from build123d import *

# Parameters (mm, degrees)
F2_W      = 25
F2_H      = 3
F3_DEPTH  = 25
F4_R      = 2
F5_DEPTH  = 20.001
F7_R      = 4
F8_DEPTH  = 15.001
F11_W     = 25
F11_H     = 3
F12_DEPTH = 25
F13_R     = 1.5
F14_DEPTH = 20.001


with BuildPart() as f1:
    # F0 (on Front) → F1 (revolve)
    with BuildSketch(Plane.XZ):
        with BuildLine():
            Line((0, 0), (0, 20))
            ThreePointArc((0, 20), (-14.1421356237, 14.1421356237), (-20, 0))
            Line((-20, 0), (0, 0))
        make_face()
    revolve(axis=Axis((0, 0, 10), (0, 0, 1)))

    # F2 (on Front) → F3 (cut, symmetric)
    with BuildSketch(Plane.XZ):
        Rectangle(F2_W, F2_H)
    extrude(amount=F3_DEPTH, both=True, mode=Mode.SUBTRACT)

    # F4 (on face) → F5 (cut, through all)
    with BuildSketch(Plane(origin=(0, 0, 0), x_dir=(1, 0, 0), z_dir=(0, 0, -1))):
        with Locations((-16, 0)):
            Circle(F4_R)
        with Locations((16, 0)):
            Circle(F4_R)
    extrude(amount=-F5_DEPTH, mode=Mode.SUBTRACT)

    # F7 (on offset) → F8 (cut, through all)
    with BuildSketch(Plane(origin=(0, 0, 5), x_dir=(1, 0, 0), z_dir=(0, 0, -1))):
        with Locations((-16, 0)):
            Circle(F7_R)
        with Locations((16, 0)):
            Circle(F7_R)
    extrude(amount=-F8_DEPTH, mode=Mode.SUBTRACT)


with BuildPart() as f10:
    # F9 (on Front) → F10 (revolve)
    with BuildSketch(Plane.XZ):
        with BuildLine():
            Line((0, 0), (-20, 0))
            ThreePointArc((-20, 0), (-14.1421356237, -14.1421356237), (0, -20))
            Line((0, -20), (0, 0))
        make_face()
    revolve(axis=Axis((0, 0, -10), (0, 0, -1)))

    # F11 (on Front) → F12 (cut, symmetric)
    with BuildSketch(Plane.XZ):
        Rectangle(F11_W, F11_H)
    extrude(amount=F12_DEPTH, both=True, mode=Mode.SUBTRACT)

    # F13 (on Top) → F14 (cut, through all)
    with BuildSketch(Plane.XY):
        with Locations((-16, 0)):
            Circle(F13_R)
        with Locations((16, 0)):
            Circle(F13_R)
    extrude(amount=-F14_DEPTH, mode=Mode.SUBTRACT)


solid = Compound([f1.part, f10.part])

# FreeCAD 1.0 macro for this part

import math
import FreeCAD as App
import Part
import Sketcher

V = App.Vector
Q = App.Units.Quantity


def add_polygon(sketch, points):
    """Adds a closed chain of lines whose ends are joined by coincident constraints."""
    first, n = sketch.GeometryCount, len(points)
    for a, b in zip(points, points[1:] + points[:1]):
        sketch.addGeometry(Part.LineSegment(App.Vector(*a, 0), App.Vector(*b, 0)), False)
    for i in range(n):
        sketch.addConstraint(Sketcher.Constraint("Coincident", first + i, 2, first + (i + 1) % n, 1))

doc = App.newDocument("Part")
params = doc.addObject("Spreadsheet::Sheet", "Params")
for row, (alias, value) in enumerate([
    ("sketch1_radius", "20 mm"),
    ("revolution_angle", "360 deg"),
    ("sketch2_width", "25 mm"),
    ("sketch2_height", "3 mm"),
    ("pocket1_length", "50 mm"),
    ("sketch3_diameter", "4 mm"),
    ("sketch4_diameter", "8 mm"),
    ("sketch5_radius", "20 mm"),
    ("revolution2_angle", "360 deg"),
    ("sketch6_width", "25 mm"),
    ("sketch6_height", "3 mm"),
    ("pocket4_length", "50 mm"),
    ("sketch7_diameter", "3 mm"),
], start=1):
    params.set(f"A{row}", alias)
    params.set(f"B{row}", "=" + value)
    params.setAlias(f"B{row}", alias)

body = doc.addObject("PartDesign::Body", "Body")

# Sketch on XZ plane
sketch1 = body.newObject("Sketcher::SketchObject", "Sketch")
sketch1.AttachmentSupport = (doc.getObject("XZ_Plane"), [""])
sketch1.MapMode = "FlatFace"
sketch1.addGeometry([
    Part.LineSegment(V(0, 0, 0), V(0, 20, 0)),
    Part.ArcOfCircle(Part.Circle(V(0, 0, 0), V(0, 0, 1), 20), math.radians(90), math.radians(180)),
    Part.LineSegment(V(-20, 0, 0), V(0, 0, 0)),
], False)
sketch1.addConstraint([
    Sketcher.Constraint("Coincident", 0, 2, 1, 1),
    Sketcher.Constraint("Coincident", 1, 2, 2, 1),
    Sketcher.Constraint("Coincident", 2, 2, 0, 1),
    Sketcher.Constraint("Vertical", 0),
    Sketcher.Constraint("Horizontal", 2),
    Sketcher.Constraint("Coincident", 1, 3, -1, 1),
    Sketcher.Constraint("Coincident", 2, 2, -1, 1),
    Sketcher.Constraint("Radius", 1, Q("20 mm")),
])
sketch1.setExpression("Constraints[7]", "Params.sketch1_radius")
revolution = body.newObject("PartDesign::Revolution", "Revolution")
revolution.Profile = sketch1
revolution.ReferenceAxis = (sketch1, ["V_Axis"])
revolution.setExpression("Angle", "Params.revolution_angle")

# Sketch on XZ plane
sketch2 = body.newObject("Sketcher::SketchObject", "Sketch001")
sketch2.AttachmentSupport = (doc.getObject("XZ_Plane"), [""])
sketch2.MapMode = "FlatFace"
add_polygon(sketch2, [(-12.5, 1.5), (-12.5, -1.5), (12.5, -1.5), (12.5, 1.5)])  # lines 0-3
sketch2.addConstraint([
    Sketcher.Constraint("Vertical", 0),
    Sketcher.Constraint("Horizontal", 1),
    Sketcher.Constraint("Vertical", 2),
    Sketcher.Constraint("Horizontal", 3),
    Sketcher.Constraint("Symmetric", 0, 2, 2, 2, -1, 1),
    Sketcher.Constraint("DistanceX", 1, 1, 1, 2, Q("25 mm")),
    Sketcher.Constraint("DistanceY", 0, 2, 0, 1, Q("3 mm")),
])
sketch2.setExpression("Constraints[9]", "Params.sketch2_width")
sketch2.setExpression("Constraints[10]", "Params.sketch2_height")
pocket1 = body.newObject("PartDesign::Pocket", "Pocket")
pocket1.Profile = sketch2
pocket1.setExpression("Length", "Params.pocket1_length")
pocket1.Midplane = True

# Sketch on XY plane
sketch3 = body.newObject("Sketcher::SketchObject", "Sketch002")
sketch3.AttachmentSupport = (doc.getObject("XY_Plane"), [""])
sketch3.MapMode = "FlatFace"
sketch3.addGeometry([
    Part.Circle(V(-16, 0, 0), V(0, 0, 1), 2),
    Part.Circle(V(16, 0, 0), V(0, 0, 1), 2),
], False)
sketch3.addConstraint([
    Sketcher.Constraint("Equal", 0, 1),
    Sketcher.Constraint("Symmetric", 0, 3, 1, 3, -1, 1),
    Sketcher.Constraint("PointOnObject", 0, 3, -1),
    Sketcher.Constraint("Diameter", 0, Q("4 mm")),
    Sketcher.Constraint("DistanceX", 0, 3, -1, 1, Q("16 mm")),
])
sketch3.setExpression("Constraints[3]", "Params.sketch3_diameter")
pocket2 = body.newObject("PartDesign::Pocket", "Pocket001")
pocket2.Profile = sketch3
pocket2.Type = "ThroughAll"
pocket2.Reversed = True

# Sketch on XY plane
sketch4 = body.newObject("Sketcher::SketchObject", "Sketch003")
sketch4.AttachmentSupport = (doc.getObject("XY_Plane"), [""])
sketch4.MapMode = "FlatFace"
sketch4.AttachmentOffset = App.Placement(V(0, 0, 5), App.Rotation())
sketch4.addGeometry([
    Part.Circle(V(-16, 0, 0), V(0, 0, 1), 4),
    Part.Circle(V(16, 0, 0), V(0, 0, 1), 4),
], False)
sketch4.addConstraint([
    Sketcher.Constraint("Equal", 0, 1),
    Sketcher.Constraint("Symmetric", 0, 3, 1, 3, -1, 1),
    Sketcher.Constraint("PointOnObject", 0, 3, -1),
    Sketcher.Constraint("Diameter", 0, Q("8 mm")),
    Sketcher.Constraint("DistanceX", 0, 3, -1, 1, Q("16 mm")),
])
sketch4.setExpression("Constraints[3]", "Params.sketch4_diameter")
pocket3 = body.newObject("PartDesign::Pocket", "Pocket002")
pocket3.Profile = sketch4
pocket3.Type = "ThroughAll"
pocket3.Reversed = True
body2 = doc.addObject("PartDesign::Body", "Body001")

# Sketch on XZ plane
sketch5 = body2.newObject("Sketcher::SketchObject", "Sketch004")
sketch5.AttachmentSupport = (doc.getObject("XZ_Plane001"), [""])
sketch5.MapMode = "FlatFace"
sketch5.addGeometry([
    Part.LineSegment(V(0, 0, 0), V(-20, 0, 0)),
    Part.ArcOfCircle(Part.Circle(V(0, 0, 0), V(0, 0, 1), 20), math.radians(180), math.radians(270)),
    Part.LineSegment(V(0, -20, 0), V(0, 0, 0)),
], False)
sketch5.addConstraint([
    Sketcher.Constraint("Coincident", 0, 2, 1, 1),
    Sketcher.Constraint("Coincident", 1, 2, 2, 1),
    Sketcher.Constraint("Coincident", 2, 2, 0, 1),
    Sketcher.Constraint("Horizontal", 0),
    Sketcher.Constraint("Vertical", 2),
    Sketcher.Constraint("Coincident", 1, 3, -1, 1),
    Sketcher.Constraint("Coincident", 2, 2, -1, 1),
    Sketcher.Constraint("Radius", 1, Q("20 mm")),
])
sketch5.setExpression("Constraints[7]", "Params.sketch5_radius")
revolution2 = body2.newObject("PartDesign::Revolution", "Revolution001")
revolution2.Profile = sketch5
revolution2.ReferenceAxis = (sketch5, ["V_Axis"])
revolution2.setExpression("Angle", "Params.revolution2_angle")

# Sketch on XZ plane
sketch6 = body2.newObject("Sketcher::SketchObject", "Sketch005")
sketch6.AttachmentSupport = (doc.getObject("XZ_Plane001"), [""])
sketch6.MapMode = "FlatFace"
add_polygon(sketch6, [(-12.5, 1.5), (-12.5, -1.5), (12.5, -1.5), (12.5, 1.5)])  # lines 0-3
sketch6.addConstraint([
    Sketcher.Constraint("Vertical", 0),
    Sketcher.Constraint("Horizontal", 1),
    Sketcher.Constraint("Vertical", 2),
    Sketcher.Constraint("Horizontal", 3),
    Sketcher.Constraint("Symmetric", 0, 2, 2, 2, -1, 1),
    Sketcher.Constraint("DistanceX", 1, 1, 1, 2, Q("25 mm")),
    Sketcher.Constraint("DistanceY", 0, 2, 0, 1, Q("3 mm")),
])
sketch6.setExpression("Constraints[9]", "Params.sketch6_width")
sketch6.setExpression("Constraints[10]", "Params.sketch6_height")
pocket4 = body2.newObject("PartDesign::Pocket", "Pocket003")
pocket4.Profile = sketch6
pocket4.setExpression("Length", "Params.pocket4_length")
pocket4.Midplane = True

# Sketch on XY plane
sketch7 = body2.newObject("Sketcher::SketchObject", "Sketch006")
sketch7.AttachmentSupport = (doc.getObject("XY_Plane001"), [""])
sketch7.MapMode = "FlatFace"
sketch7.addGeometry([
    Part.Circle(V(-16, 0, 0), V(0, 0, 1), 1.5),
    Part.Circle(V(16, 0, 0), V(0, 0, 1), 1.5),
], False)
sketch7.addConstraint([
    Sketcher.Constraint("Equal", 0, 1),
    Sketcher.Constraint("Symmetric", 0, 3, 1, 3, -1, 1),
    Sketcher.Constraint("PointOnObject", 0, 3, -1),
    Sketcher.Constraint("Diameter", 0, Q("3 mm")),
    Sketcher.Constraint("DistanceX", 0, 3, -1, 1, Q("16 mm")),
])
sketch7.setExpression("Constraints[3]", "Params.sketch7_diameter")
pocket5 = body2.newObject("PartDesign::Pocket", "Pocket004")
pocket5.Profile = sketch7
pocket5.Type = "ThroughAll"

doc.recompute()
